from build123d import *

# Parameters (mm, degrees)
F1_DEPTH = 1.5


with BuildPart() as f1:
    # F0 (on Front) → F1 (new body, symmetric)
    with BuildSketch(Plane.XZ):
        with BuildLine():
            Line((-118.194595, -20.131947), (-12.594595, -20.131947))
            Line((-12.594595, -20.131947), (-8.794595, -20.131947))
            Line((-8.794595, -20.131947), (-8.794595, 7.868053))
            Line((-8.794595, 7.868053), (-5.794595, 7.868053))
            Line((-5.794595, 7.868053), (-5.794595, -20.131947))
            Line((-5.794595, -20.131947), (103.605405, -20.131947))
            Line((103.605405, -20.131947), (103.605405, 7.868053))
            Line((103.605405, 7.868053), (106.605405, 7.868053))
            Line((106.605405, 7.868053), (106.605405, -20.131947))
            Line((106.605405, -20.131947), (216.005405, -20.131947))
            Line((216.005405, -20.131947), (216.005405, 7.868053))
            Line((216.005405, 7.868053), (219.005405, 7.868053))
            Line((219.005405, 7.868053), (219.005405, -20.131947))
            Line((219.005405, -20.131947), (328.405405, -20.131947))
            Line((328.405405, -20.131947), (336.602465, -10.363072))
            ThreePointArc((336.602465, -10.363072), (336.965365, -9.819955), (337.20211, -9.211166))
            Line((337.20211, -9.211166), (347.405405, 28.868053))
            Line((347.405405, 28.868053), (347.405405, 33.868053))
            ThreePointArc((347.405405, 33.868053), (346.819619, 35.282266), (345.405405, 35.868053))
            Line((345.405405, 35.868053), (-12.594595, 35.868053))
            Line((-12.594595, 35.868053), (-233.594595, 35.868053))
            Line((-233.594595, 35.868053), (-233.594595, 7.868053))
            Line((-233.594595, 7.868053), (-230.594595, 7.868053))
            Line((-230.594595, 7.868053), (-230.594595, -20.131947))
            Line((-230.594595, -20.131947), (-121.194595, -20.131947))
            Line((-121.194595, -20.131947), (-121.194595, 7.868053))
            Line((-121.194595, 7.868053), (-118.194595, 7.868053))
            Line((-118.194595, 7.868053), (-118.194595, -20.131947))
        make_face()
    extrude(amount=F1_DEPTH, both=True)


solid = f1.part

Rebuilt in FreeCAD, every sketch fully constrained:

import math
import FreeCAD as App
import Part
import Sketcher

V = App.Vector
Q = App.Units.Quantity

doc = App.newDocument("Part")
body = doc.addObject("PartDesign::Body", "Body")

sketch1 = doc.addObject("Sketcher::SketchObject", "Sketch")
body.addObject(sketch1)
sketch1.AttachmentSupport = (doc.XZ_Plane, [""])
sketch1.MapMode = "FlatFace"
sketch1.addGeometry(Part.LineSegment(V(-118.194595, -20.131947, 0), V(-8.794595, -20.131947, 0)), False)
sketch1.addGeometry(Part.LineSegment(V(-8.794595, -20.131947, 0), V(-8.794595, 7.868053, 0)), False)
sketch1.addGeometry(Part.LineSegment(V(-8.794595, 7.868053, 0), V(-5.794595, 7.868053, 0)), False)
sketch1.addGeometry(Part.LineSegment(V(-5.794595, 7.868053, 0), V(-5.794595, -20.131947, 0)), False)
sketch1.addGeometry(Part.LineSegment(V(-5.794595, -20.131947, 0), V(103.605405, -20.131947, 0)), False)
sketch1.addGeometry(Part.LineSegment(V(103.605405, -20.131947, 0), V(103.605405, 7.868053, 0)), False)
sketch1.addGeometry(Part.LineSegment(V(103.605405, 7.868053, 0), V(106.605405, 7.868053, 0)), False)
sketch1.addGeometry(Part.LineSegment(V(106.605405, 7.868053, 0), V(106.605405, -20.131947, 0)), False)
sketch1.addGeometry(Part.LineSegment(V(106.605405, -20.131947, 0), V(216.005405, -20.131947, 0)), False)
sketch1.addGeometry(Part.LineSegment(V(216.005405, -20.131947, 0), V(216.005405, 7.868053, 0)), False)
sketch1.addGeometry(Part.LineSegment(V(216.005405, 7.868053, 0), V(219.005405, 7.868053, 0)), False)
sketch1.addGeometry(Part.LineSegment(V(219.005405, 7.868053, 0), V(219.005405, -20.131947, 0)), False)
sketch1.addGeometry(Part.LineSegment(V(219.005405, -20.131947, 0), V(328.405405, -20.131947, 0)), False)
sketch1.addGeometry(Part.LineSegment(V(328.405405, -20.131947, 0), V(336.602465, -10.363072, 0)), False)
sketch1.addGeometry(Part.ArcOfCircle(Part.Circle(V(334.304346, -8.434715, 0), V(0, 0, 1), 2.999986), math.radians(-40.000095), math.radians(-14.999959)), False)
sketch1.addGeometry(Part.LineSegment(V(337.20211, -9.211166, 0), V(347.405405, 28.868053, 0)), False)
sketch1.addGeometry(Part.LineSegment(V(347.405405, 28.868053, 0), V(347.405405, 33.868053, 0)), False)
sketch1.addGeometry(Part.ArcOfCircle(Part.Circle(V(345.405405, 33.868053, 0), V(0, 0, 1), 2), math.radians(0.000006), math.radians(89.999994)), False)
sketch1.addGeometry(Part.LineSegment(V(345.405405, 35.868053, 0), V(-233.594595, 35.868053, 0)), False)
sketch1.addGeometry(Part.LineSegment(V(-233.594595, 35.868053, 0), V(-233.594595, 7.868053, 0)), False)
sketch1.addGeometry(Part.LineSegment(V(-233.594595, 7.868053, 0), V(-230.594595, 7.868053, 0)), False)
sketch1.addGeometry(Part.LineSegment(V(-230.594595, 7.868053, 0), V(-230.594595, -20.131947, 0)), False)
sketch1.addGeometry(Part.LineSegment(V(-230.594595, -20.131947, 0), V(-121.194595, -20.131947, 0)), False)
sketch1.addGeometry(Part.LineSegment(V(-121.194595, -20.131947, 0), V(-121.194595, 7.868053, 0)), False)
sketch1.addGeometry(Part.LineSegment(V(-121.194595, 7.868053, 0), V(-118.194595, 7.868053, 0)), False)
sketch1.addGeometry(Part.LineSegment(V(-118.194595, 7.868053, 0), V(-118.194595, -20.131947, 0)), False)
sketch1.addConstraint(Sketcher.Constraint("Coincident", 0, 2, 1, 1))
sketch1.addConstraint(Sketcher.Constraint("Coincident", 1, 2, 2, 1))
sketch1.addConstraint(Sketcher.Constraint("Coincident", 2, 2, 3, 1))
sketch1.addConstraint(Sketcher.Constraint("Coincident", 3, 2, 4, 1))
sketch1.addConstraint(Sketcher.Constraint("Coincident", 4, 2, 5, 1))
sketch1.addConstraint(Sketcher.Constraint("Coincident", 5, 2, 6, 1))
sketch1.addConstraint(Sketcher.Constraint("Coincident", 6, 2, 7, 1))
sketch1.addConstraint(Sketcher.Constraint("Coincident", 7, 2, 8, 1))
sketch1.addConstraint(Sketcher.Constraint("Coincident", 8, 2, 9, 1))
sketch1.addConstraint(Sketcher.Constraint("Coincident", 9, 2, 10, 1))
sketch1.addConstraint(Sketcher.Constraint("Coincident", 10, 2, 11, 1))
sketch1.addConstraint(Sketcher.Constraint("Coincident", 11, 2, 12, 1))
sketch1.addConstraint(Sketcher.Constraint("Coincident", 12, 2, 13, 1))
sketch1.addConstraint(Sketcher.Constraint("Tangent", 13, 2, 14, 1))
sketch1.addConstraint(Sketcher.Constraint("Tangent", 14, 2, 15, 1))
sketch1.addConstraint(Sketcher.Constraint("Coincident", 15, 2, 16, 1))
sketch1.addConstraint(Sketcher.Constraint("Tangent", 16, 2, 17, 1))
sketch1.addConstraint(Sketcher.Constraint("Tangent", 17, 2, 18, 1))
sketch1.addConstraint(Sketcher.Constraint("Coincident", 18, 2, 19, 1))
sketch1.addConstraint(Sketcher.Constraint("Coincident", 19, 2, 20, 1))
sketch1.addConstraint(Sketcher.Constraint("Coincident", 20, 2, 21, 1))
sketch1.addConstraint(Sketcher.Constraint("Coincident", 21, 2, 22, 1))
sketch1.addConstraint(Sketcher.Constraint("Coincident", 22, 2, 23, 1))
sketch1.addConstraint(Sketcher.Constraint("Coincident", 23, 2, 24, 1))
sketch1.addConstraint(Sketcher.Constraint("Coincident", 24, 2, 25, 1))
sketch1.addConstraint(Sketcher.Constraint("Coincident", 25, 2, 0, 1))
sketch1.addConstraint(Sketcher.Constraint("Horizontal", 0))
sketch1.addConstraint(Sketcher.Constraint("Vertical", 1))
sketch1.addConstraint(Sketcher.Constraint("Horizontal", 2))
sketch1.addConstraint(Sketcher.Constraint("Vertical", 3))
sketch1.addConstraint(Sketcher.Constraint("Horizontal", 4))
sketch1.addConstraint(Sketcher.Constraint("Vertical", 5))
sketch1.addConstraint(Sketcher.Constraint("Horizontal", 6))
sketch1.addConstraint(Sketcher.Constraint("Vertical", 7))
sketch1.addConstraint(Sketcher.Constraint("Horizontal", 8))
sketch1.addConstraint(Sketcher.Constraint("Vertical", 9))
sketch1.addConstraint(Sketcher.Constraint("Horizontal", 10))
sketch1.addConstraint(Sketcher.Constraint("Vertical", 11))
sketch1.addConstraint(Sketcher.Constraint("Horizontal", 12))
sketch1.addConstraint(Sketcher.Constraint("Vertical", 16))
sketch1.addConstraint(Sketcher.Constraint("Horizontal", 18))
sketch1.addConstraint(Sketcher.Constraint("Vertical", 19))
sketch1.addConstraint(Sketcher.Constraint("Horizontal", 20))
sketch1.addConstraint(Sketcher.Constraint("Vertical", 21))
sketch1.addConstraint(Sketcher.Constraint("Horizontal", 22))
sketch1.addConstraint(Sketcher.Constraint("Vertical", 23))
sketch1.addConstraint(Sketcher.Constraint("Horizontal", 24))
sketch1.addConstraint(Sketcher.Constraint("Vertical", 25))
sketch1.addConstraint(Sketcher.Constraint("Horizontal", 0, 2, 3, 2))
sketch1.addConstraint(Sketcher.Constraint("Horizontal", 2, 2, 5, 2))
sketch1.addConstraint(Sketcher.Constraint("Horizontal", 4, 2, 7, 2))
sketch1.addConstraint(Sketcher.Constraint("Horizontal", 6, 2, 9, 2))
sketch1.addConstraint(Sketcher.Constraint("Horizontal", 8, 2, 11, 2))
sketch1.addConstraint(Sketcher.Constraint("Horizontal", 10, 2, 19, 2))
sketch1.addConstraint(Sketcher.Constraint("Horizontal", 12, 2, 21, 2))
sketch1.addConstraint(Sketcher.Constraint("Horizontal", 20, 2, 23, 2))
sketch1.addConstraint(Sketcher.Constraint("Equal", 0, 4))
sketch1.addConstraint(Sketcher.Constraint("Equal", 2, 6))
sketch1.addConstraint(Sketcher.Constraint("Equal", 4, 8))
sketch1.addConstraint(Sketcher.Constraint("Equal", 6, 10))
sketch1.addConstraint(Sketcher.Constraint("Equal", 8, 12))
sketch1.addConstraint(Sketcher.Constraint("Equal", 10, 20))
sketch1.addConstraint(Sketcher.Constraint("Equal", 12, 22))
sketch1.addConstraint(Sketcher.Constraint("Equal", 20, 24))
sketch1.addConstraint(Sketcher.Constraint("Equal", 11, 19))
sketch1.addConstraint(Sketcher.Constraint("Radius", 17, 2.0))
sketch1.addConstraint(Sketcher.Constraint("DistanceX", 2, 1, 2, 2, 3.0))
sketch1.addConstraint(Sketcher.Constraint("DistanceX", 18, 2, 18, 1, 579.0))
sketch1.addConstraint(Sketcher.Constraint("DistanceY", 1, 1, 1, 2, 28.0))
sketch1.addConstraint(Sketcher.Constraint("DistanceY", 16, 1, 16, 2, 5.0))
sketch1.addConstraint(Sketcher.Constraint("Angle", 13, Q("49.999998 deg")))
sketch1.addConstraint(Sketcher.Constraint("Angle", 15, Q("75.000001 deg")))
sketch1.addConstraint(Sketcher.Constraint("DistanceX", 0, 1, 0, 2, 109.4))
sketch1.addConstraint(Sketcher.Constraint("Radius", 14, 2.999986))
sketch1.addConstraint(Sketcher.Constraint("DistanceX", -1, 1, 14, 2, 337.20211))
sketch1.addConstraint(Sketcher.Constraint("DistanceY", 14, 3, -1, 1, 8.434715))
pad1 = doc.addObject("PartDesign::Pad", "Pad")
body.addObject(pad1)
pad1.Profile = sketch1
pad1.Length = 3
pad1.Midplane = True

doc.recompute()
